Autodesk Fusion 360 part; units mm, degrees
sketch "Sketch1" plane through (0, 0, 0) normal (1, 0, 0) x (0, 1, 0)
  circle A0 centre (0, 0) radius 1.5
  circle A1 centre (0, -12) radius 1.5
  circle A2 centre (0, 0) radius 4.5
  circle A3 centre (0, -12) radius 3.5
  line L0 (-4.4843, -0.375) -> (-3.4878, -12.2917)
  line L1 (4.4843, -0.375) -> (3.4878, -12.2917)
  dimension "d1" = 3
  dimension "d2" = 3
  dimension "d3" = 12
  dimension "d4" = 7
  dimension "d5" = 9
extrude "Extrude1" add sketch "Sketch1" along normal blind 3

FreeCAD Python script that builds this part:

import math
import FreeCAD as App
import Part
import Sketcher

doc = App.newDocument("Part")
params = doc.addObject("Spreadsheet::Sheet", "Params")
for row, (alias, value) in enumerate([
    ("sketch1_diameter", "3 mm"),
    ("sketch1_radius", "4.5 mm"),
    ("sketch1_radius2", "3.5 mm"),
    ("pad1_length", "3 mm"),
], start=1):
    params.set(f"A{row}", alias)
    params.set(f"B{row}", "=" + value)
    params.setAlias(f"B{row}", alias)

body = doc.addObject("PartDesign::Body", "Body")

# Sketch on YZ plane
sketch1 = doc.addObject("Sketcher::SketchObject", "Sketch")
body.addObject(sketch1)
sketch1.AttachmentSupport = (doc.YZ_Plane, [""])
sketch1.MapMode = "FlatFace"
sketch1.addGeometry(Part.ArcOfCircle(Part.Circle(App.Vector(0, 0, 0), App.Vector(0, 0, 1), 4.5), math.radians(-4.780243), math.radians(184.780243)), False)
sketch1.addGeometry(Part.LineSegment(App.Vector(-4.4843, -0.375, 0), App.Vector(-3.4878, -12.2917, 0)), False)
sketch1.addGeometry(Part.ArcOfCircle(Part.Circle(App.Vector(0, -12, 0), App.Vector(0, 0, 1), 3.5), math.radians(-175.219229), math.radians(-4.780771)), False)
sketch1.addGeometry(Part.LineSegment(App.Vector(3.4878, -12.2917, 0), App.Vector(4.4843, -0.375, 0)), False)
sketch1.addGeometry(Part.Circle(App.Vector(0, 0, 0), App.Vector(0, 0, 1), 1.5), False)
sketch1.addGeometry(Part.Circle(App.Vector(0, -12, 0), App.Vector(0, 0, 1), 1.5), False)
sketch1.addConstraint(Sketcher.Constraint("Tangent", 0, 2, 1, 1))
sketch1.addConstraint(Sketcher.Constraint("Tangent", 1, 2, 2, 1))
sketch1.addConstraint(Sketcher.Constraint("Tangent", 2, 2, 3, 1))
sketch1.addConstraint(Sketcher.Constraint("Tangent", 3, 2, 0, 1))
sketch1.addConstraint(Sketcher.Constraint("Coincident", 0, 3, -1, 1))
sketch1.addConstraint(Sketcher.Constraint("Coincident", 4, 3, -1, 1))
sketch1.addConstraint(Sketcher.Constraint("Coincident", 5, 3, 2, 3))
sketch1.addConstraint(Sketcher.Constraint("Equal", 4, 5))
sketch1.addConstraint(Sketcher.Constraint("PointOnObject", 2, 3, -2))
sketch1.addConstraint(Sketcher.Constraint("Diameter", 4, 3.0))
sketch1.addConstraint(Sketcher.Constraint("Radius", 0, 4.5))
sketch1.addConstraint(Sketcher.Constraint("Radius", 2, 3.5))
sketch1.addConstraint(Sketcher.Constraint("DistanceY", 2, 3, -1, 1, 12.0))
sketch1.setExpression("Constraints[9]", "Params.sketch1_diameter")
sketch1.setExpression("Constraints[10]", "Params.sketch1_radius")
sketch1.setExpression("Constraints[11]", "Params.sketch1_radius2")
pad1 = doc.addObject("PartDesign::Pad", "Pad")
body.addObject(pad1)
pad1.Profile = sketch1
pad1.setExpression("Length", "Params.pad1_length")

doc.recompute()
